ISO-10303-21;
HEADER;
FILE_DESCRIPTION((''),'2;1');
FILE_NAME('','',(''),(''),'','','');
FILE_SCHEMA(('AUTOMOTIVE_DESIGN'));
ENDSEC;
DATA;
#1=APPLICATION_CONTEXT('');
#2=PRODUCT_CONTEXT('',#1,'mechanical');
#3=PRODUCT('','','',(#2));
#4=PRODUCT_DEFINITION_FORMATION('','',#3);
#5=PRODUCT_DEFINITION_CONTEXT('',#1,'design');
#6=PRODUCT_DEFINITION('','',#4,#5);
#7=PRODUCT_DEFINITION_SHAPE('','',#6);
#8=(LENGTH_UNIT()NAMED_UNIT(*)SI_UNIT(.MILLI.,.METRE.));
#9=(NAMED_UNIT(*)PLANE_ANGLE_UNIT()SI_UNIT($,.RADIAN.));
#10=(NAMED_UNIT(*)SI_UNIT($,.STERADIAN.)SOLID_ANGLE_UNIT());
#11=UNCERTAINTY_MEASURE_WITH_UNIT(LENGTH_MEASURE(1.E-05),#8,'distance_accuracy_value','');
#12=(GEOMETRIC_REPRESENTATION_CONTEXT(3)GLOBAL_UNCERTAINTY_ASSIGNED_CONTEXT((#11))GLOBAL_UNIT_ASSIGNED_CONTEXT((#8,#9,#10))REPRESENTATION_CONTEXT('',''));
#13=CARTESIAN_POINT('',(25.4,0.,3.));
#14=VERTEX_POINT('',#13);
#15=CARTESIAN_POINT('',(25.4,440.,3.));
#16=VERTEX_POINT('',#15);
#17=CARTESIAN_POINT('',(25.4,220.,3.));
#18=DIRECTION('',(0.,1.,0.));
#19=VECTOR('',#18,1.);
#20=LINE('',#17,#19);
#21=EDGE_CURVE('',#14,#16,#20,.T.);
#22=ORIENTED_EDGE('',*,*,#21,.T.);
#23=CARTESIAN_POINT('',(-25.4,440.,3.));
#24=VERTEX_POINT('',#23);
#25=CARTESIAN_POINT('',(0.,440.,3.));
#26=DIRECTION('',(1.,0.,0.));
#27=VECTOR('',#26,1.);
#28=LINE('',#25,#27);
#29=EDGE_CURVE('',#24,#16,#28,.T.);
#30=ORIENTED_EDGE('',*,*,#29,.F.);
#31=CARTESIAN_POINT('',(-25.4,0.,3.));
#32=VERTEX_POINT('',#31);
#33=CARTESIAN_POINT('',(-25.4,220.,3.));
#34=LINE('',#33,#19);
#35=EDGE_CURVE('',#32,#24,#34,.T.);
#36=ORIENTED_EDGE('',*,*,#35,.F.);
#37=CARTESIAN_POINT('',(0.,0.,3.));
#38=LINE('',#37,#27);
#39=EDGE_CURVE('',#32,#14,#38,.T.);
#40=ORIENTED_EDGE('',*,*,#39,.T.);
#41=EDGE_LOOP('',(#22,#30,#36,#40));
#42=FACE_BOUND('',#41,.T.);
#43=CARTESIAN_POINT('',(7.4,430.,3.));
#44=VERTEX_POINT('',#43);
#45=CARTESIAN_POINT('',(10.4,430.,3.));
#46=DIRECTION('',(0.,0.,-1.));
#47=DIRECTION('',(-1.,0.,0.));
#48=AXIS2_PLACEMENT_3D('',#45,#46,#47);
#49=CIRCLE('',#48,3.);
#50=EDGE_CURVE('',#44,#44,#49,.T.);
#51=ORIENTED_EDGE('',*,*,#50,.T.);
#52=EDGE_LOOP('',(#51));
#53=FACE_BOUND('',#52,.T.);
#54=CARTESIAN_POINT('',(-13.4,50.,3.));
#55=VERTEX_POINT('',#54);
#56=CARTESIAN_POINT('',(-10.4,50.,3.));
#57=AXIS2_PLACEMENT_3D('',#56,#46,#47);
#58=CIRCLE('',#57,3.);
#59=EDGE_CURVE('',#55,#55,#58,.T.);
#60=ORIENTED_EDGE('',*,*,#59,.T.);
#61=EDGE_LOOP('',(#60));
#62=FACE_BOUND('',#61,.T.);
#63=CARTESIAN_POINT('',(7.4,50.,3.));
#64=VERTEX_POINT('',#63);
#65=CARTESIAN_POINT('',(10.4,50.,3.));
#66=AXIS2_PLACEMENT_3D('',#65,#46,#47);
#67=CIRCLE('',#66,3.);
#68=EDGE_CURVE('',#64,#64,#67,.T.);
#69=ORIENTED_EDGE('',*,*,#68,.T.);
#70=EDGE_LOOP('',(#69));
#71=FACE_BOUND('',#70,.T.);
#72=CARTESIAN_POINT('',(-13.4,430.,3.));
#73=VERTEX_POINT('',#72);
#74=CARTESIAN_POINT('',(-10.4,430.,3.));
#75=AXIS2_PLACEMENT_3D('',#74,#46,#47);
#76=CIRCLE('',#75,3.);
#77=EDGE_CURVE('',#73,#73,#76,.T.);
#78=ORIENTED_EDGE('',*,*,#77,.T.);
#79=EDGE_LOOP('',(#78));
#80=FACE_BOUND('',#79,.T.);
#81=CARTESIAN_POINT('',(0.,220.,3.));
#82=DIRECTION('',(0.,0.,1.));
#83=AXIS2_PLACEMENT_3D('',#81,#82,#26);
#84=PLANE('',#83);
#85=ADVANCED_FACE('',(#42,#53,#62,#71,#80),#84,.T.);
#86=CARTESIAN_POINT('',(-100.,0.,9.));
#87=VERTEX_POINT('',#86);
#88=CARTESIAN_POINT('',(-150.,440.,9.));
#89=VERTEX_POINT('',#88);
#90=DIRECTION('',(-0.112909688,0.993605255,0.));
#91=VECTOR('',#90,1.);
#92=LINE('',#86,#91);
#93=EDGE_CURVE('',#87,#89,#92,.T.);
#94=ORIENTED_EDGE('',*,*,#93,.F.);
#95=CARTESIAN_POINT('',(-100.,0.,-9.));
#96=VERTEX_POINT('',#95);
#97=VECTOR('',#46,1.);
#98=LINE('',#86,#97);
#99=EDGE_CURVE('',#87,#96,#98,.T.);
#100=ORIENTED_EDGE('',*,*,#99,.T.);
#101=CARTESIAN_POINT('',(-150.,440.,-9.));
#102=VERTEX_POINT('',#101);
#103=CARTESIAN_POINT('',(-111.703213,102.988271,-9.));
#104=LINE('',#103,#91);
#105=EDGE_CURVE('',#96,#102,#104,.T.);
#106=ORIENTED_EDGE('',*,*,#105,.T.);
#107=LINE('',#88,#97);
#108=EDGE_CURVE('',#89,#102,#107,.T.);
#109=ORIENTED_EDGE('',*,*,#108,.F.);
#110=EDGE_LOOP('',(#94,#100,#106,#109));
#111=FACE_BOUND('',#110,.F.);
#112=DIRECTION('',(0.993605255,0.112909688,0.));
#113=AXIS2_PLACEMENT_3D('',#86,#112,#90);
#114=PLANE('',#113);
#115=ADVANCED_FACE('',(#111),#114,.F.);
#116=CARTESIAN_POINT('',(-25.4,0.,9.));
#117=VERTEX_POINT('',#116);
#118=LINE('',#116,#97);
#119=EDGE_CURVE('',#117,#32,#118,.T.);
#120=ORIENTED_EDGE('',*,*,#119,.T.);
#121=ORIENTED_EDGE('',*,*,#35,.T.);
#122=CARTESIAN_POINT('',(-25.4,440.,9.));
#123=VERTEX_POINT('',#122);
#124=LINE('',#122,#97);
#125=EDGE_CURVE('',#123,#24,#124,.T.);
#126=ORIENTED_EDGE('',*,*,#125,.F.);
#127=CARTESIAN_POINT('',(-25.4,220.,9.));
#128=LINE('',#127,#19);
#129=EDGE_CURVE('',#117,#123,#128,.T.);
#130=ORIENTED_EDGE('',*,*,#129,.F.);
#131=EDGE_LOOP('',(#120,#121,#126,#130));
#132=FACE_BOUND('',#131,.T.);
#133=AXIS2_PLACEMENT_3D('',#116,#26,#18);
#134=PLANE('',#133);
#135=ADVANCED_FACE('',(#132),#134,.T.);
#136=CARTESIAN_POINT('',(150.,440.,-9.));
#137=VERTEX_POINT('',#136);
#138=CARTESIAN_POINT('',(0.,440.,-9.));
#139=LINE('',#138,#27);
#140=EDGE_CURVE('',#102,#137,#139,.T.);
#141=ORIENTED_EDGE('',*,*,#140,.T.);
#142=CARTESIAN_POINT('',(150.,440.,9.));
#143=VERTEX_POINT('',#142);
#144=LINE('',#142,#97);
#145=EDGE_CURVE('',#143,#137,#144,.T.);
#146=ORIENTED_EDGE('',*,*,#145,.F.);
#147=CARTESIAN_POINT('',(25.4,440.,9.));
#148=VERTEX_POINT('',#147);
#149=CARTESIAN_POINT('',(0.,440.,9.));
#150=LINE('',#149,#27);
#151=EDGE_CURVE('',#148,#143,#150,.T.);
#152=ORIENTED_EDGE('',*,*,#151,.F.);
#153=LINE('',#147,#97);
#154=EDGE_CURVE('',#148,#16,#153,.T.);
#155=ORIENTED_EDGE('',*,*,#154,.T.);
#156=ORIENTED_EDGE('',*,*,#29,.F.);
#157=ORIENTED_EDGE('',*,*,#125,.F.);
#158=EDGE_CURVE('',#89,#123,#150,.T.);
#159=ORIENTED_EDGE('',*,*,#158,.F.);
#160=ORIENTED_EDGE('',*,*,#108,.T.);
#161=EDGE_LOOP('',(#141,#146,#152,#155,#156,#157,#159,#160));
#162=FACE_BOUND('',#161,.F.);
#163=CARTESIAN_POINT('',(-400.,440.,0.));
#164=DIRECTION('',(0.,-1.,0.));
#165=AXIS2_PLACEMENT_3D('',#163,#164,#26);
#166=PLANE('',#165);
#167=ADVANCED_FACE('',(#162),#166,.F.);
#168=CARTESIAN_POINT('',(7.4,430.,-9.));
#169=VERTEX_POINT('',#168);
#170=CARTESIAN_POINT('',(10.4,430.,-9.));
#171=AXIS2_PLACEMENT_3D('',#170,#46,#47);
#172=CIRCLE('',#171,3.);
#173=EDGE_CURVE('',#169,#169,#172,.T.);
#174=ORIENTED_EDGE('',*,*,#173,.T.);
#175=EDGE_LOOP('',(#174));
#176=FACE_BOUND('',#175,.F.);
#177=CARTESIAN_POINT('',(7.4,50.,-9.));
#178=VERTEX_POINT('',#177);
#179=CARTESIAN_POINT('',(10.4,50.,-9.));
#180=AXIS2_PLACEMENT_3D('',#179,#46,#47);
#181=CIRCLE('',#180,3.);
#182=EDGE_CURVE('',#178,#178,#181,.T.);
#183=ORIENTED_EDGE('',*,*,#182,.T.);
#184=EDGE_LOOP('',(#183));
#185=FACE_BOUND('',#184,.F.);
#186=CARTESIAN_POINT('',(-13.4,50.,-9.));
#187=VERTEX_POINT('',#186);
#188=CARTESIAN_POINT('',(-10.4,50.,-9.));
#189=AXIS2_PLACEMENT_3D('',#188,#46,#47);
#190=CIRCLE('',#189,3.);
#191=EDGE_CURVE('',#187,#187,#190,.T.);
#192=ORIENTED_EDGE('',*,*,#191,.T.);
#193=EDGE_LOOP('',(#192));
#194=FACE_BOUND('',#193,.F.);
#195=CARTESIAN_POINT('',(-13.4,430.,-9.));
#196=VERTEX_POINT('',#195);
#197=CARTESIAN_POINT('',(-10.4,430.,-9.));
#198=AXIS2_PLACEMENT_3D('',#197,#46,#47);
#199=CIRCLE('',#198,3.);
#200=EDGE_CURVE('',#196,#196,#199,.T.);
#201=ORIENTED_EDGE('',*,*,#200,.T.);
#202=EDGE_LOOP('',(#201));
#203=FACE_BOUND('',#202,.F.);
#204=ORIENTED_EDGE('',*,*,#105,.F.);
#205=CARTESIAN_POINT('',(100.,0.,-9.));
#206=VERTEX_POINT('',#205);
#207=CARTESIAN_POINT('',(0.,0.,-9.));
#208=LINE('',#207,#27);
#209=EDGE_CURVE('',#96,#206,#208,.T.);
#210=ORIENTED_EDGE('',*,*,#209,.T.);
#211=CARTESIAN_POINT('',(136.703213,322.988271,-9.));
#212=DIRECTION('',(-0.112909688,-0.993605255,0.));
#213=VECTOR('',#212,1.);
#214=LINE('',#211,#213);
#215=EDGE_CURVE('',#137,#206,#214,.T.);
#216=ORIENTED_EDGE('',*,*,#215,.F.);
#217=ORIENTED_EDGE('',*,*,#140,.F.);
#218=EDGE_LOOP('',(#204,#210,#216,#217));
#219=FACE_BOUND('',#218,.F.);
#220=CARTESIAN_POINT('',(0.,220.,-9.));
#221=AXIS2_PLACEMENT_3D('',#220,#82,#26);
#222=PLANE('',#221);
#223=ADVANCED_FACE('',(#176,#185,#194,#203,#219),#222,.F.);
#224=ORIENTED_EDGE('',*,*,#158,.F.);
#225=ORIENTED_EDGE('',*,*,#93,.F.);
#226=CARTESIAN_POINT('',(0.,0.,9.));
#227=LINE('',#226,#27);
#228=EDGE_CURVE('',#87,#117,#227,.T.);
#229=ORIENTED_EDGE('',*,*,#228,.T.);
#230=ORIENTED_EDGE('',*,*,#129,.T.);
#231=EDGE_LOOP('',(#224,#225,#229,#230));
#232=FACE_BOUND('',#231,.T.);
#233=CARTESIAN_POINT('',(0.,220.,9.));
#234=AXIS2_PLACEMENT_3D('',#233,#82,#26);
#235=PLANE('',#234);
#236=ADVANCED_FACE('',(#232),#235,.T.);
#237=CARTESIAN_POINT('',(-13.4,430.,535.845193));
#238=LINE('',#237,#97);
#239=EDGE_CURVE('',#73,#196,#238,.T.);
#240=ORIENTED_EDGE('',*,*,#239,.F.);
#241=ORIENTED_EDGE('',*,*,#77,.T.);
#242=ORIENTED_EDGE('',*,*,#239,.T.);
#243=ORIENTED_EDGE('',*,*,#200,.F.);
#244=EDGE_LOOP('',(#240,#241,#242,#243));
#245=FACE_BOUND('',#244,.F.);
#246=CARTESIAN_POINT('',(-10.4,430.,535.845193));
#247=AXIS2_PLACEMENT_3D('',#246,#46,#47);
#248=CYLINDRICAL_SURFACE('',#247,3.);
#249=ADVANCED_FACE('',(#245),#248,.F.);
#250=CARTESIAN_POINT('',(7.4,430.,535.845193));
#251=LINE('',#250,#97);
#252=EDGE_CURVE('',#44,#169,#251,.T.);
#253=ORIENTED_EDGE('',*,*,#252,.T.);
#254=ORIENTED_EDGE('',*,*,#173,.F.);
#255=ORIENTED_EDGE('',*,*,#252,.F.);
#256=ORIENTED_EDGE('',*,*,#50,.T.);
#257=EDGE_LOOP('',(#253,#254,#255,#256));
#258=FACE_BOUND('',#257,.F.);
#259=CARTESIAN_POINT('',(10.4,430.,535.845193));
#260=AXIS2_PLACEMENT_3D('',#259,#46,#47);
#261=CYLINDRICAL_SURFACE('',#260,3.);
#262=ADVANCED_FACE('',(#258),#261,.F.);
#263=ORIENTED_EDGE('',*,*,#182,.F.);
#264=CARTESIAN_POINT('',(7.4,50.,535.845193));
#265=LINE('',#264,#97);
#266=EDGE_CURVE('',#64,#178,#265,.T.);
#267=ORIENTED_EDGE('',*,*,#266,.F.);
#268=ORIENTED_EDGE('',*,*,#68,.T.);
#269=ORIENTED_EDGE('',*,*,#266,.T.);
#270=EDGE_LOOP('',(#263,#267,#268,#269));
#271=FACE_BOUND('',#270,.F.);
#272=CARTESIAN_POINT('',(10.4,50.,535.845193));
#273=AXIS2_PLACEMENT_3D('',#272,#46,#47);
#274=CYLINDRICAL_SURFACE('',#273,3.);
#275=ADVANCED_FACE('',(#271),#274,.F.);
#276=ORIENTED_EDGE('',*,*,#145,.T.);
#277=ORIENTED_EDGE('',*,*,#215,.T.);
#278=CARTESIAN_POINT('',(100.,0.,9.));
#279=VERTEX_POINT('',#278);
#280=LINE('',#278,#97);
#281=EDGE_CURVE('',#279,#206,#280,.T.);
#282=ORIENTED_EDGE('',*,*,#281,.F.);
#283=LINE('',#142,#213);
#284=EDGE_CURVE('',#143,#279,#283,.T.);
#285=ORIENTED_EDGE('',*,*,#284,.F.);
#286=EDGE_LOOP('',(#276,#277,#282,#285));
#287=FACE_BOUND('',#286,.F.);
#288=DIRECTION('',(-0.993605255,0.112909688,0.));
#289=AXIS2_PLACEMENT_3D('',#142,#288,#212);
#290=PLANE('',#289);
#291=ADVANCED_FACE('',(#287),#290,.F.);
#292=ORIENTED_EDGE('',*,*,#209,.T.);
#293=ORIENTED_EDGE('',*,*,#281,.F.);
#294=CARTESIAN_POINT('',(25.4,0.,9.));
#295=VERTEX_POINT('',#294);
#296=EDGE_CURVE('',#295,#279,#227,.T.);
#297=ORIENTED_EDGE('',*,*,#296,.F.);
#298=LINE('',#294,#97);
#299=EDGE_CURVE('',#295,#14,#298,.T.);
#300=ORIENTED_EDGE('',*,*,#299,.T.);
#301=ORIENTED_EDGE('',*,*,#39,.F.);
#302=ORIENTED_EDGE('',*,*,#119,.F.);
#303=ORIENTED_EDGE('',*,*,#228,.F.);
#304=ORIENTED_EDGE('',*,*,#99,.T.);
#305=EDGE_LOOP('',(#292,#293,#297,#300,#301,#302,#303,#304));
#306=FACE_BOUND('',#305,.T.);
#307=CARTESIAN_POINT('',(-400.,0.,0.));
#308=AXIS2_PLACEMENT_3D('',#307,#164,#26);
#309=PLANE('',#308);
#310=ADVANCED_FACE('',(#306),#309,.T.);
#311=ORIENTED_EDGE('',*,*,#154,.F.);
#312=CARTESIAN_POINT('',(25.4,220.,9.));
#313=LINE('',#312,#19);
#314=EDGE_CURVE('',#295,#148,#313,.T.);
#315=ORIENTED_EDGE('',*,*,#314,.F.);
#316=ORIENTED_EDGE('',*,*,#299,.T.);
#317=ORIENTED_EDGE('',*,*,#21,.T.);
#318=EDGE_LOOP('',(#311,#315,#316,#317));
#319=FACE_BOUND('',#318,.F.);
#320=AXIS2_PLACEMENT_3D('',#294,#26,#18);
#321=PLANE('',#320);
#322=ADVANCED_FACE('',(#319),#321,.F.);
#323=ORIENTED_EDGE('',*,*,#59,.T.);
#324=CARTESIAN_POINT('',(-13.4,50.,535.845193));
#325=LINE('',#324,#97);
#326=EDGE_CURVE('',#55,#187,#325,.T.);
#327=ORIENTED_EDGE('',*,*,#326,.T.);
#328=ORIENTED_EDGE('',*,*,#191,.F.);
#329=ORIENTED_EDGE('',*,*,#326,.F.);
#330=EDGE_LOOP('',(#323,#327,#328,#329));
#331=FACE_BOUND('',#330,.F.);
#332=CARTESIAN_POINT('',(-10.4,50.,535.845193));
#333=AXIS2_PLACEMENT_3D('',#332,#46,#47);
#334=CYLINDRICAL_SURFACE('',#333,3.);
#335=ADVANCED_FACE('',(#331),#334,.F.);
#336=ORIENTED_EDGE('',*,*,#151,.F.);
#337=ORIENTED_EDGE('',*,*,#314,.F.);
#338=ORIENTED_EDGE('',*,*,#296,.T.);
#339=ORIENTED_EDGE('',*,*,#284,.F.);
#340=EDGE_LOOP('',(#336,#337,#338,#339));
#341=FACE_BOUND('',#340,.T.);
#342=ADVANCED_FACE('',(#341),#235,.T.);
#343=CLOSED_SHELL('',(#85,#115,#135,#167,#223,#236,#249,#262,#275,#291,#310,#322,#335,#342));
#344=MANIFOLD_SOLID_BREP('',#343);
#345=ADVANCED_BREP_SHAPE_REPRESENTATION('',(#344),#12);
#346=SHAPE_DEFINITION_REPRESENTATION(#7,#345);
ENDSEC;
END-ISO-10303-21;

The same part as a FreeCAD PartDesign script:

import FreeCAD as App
import Part
import Sketcher
from FreeCAD import Vector

doc = App.newDocument("Part")
params = doc.addObject("Spreadsheet::Sheet", "Params")
for row, (alias, value) in enumerate([
    ("sketch1_width", "800 mm"),
    ("sketch1_height", "440 mm"),
    ("pad1_length", "18 mm"),
    ("sketch2_width", "300 mm"),
    ("sketch2_width2", "250 mm"),
    ("sketch2_height", "440 mm"),
    ("pocket1_length", "40 mm"),
    ("sketch3_height", "440 mm"),
    ("sketch3_width", "50.8 mm"),
    ("pocket2_length", "6 mm"),
    ("sketch4_diameter", "6 mm"),
    ("hole_diameter", "6 mm"),
], start=1):
    params.set(f"A{row}", alias)
    params.set(f"B{row}", "=" + value)
    params.setAlias(f"B{row}", alias)

body = doc.addObject("PartDesign::Body", "Body")

sketch1 = body.newObject("Sketcher::SketchObject", "Sketch")
sketch1.AttachmentSupport = (doc.getObject("XY_Plane"), [""])
sketch1.MapMode = "FlatFace"
sketch1.addGeometry([
    Part.LineSegment(Vector(-400, 440, 0), Vector(-400, 0, 0)),
    Part.LineSegment(Vector(-400, 0, 0), Vector(400, 0, 0)),
    Part.LineSegment(Vector(400, 0, 0), Vector(400, 440, 0)),
    Part.LineSegment(Vector(400, 440, 0), Vector(-400, 440, 0)),
], False)
sketch1.addConstraint([
    Sketcher.Constraint("Coincident", 0, 2, 1, 1),
    Sketcher.Constraint("Coincident", 1, 2, 2, 1),
    Sketcher.Constraint("Coincident", 2, 2, 3, 1),
    Sketcher.Constraint("Coincident", 3, 2, 0, 1),
    Sketcher.Constraint("Vertical", 0),
    Sketcher.Constraint("Horizontal", 1),
    Sketcher.Constraint("Vertical", 2),
    Sketcher.Constraint("Horizontal", 3),
    Sketcher.Constraint("Symmetric", 0, 2, 1, 2, -1, 1),
    Sketcher.Constraint("DistanceX", 1, 1, 1, 2, 800.0),
    Sketcher.Constraint("DistanceY", 0, 2, 0, 1, 440.0),
])
sketch1.setExpression("Constraints[9]", "Params.sketch1_width")
sketch1.setExpression("Constraints[10]", "Params.sketch1_height")
pad1 = body.newObject("PartDesign::Pad", "Pad")
pad1.Profile = sketch1
pad1.setExpression("Length", "Params.pad1_length")
pad1.Midplane = True

sketch2 = body.newObject("Sketcher::SketchObject", "Sketch001")
sketch2.AttachmentSupport = (doc.getObject("XY_Plane"), [""])
sketch2.MapMode = "FlatFace"
sketch2.AttachmentOffset = App.Placement(Vector(0, 0, 9), App.Rotation())
sketch2.addGeometry([
    Part.LineSegment(Vector(-400, 0, 0), Vector(-100, 0, 0)),
    Part.LineSegment(Vector(-100, 0, 0), Vector(-150, 440, 0)),
    Part.LineSegment(Vector(-150, 440, 0), Vector(-400, 440, 0)),
    Part.LineSegment(Vector(-400, 440, 0), Vector(-400, 0, 0)),
    Part.LineSegment(Vector(150, 440, 0), Vector(100, 0, 0)),
    Part.LineSegment(Vector(100, 0, 0), Vector(400, 0, 0)),
    Part.LineSegment(Vector(400, 0, 0), Vector(400, 440, 0)),
    Part.LineSegment(Vector(400, 440, 0), Vector(150, 440, 0)),
], False)
sketch2.addConstraint([
    Sketcher.Constraint("Coincident", 0, 2, 1, 1),
    Sketcher.Constraint("Coincident", 1, 2, 2, 1),
    Sketcher.Constraint("Coincident", 2, 2, 3, 1),
    Sketcher.Constraint("Coincident", 3, 2, 0, 1),
    Sketcher.Constraint("Coincident", 4, 2, 5, 1),
    Sketcher.Constraint("Coincident", 5, 2, 6, 1),
    Sketcher.Constraint("Coincident", 6, 2, 7, 1),
    Sketcher.Constraint("Coincident", 7, 2, 4, 1),
    Sketcher.Constraint("Horizontal", 0),
    Sketcher.Constraint("Horizontal", 2),
    Sketcher.Constraint("Vertical", 3),
    Sketcher.Constraint("Horizontal", 5),
    Sketcher.Constraint("Vertical", 6),
    Sketcher.Constraint("Horizontal", 7),
    Sketcher.Constraint("Symmetric", 0, 2, 4, 2, -1, 1),
    Sketcher.Constraint("Symmetric", 3, 2, 5, 2, -2),
    Sketcher.Constraint("Symmetric", 1, 2, 7, 2, -2),
    Sketcher.Constraint("DistanceX", 0, 1, 0, 2, 300.0),
    Sketcher.Constraint("DistanceX", 2, 2, 2, 1, 250.0),
    Sketcher.Constraint("DistanceY", 3, 2, 3, 1, 440.0),
    Sketcher.Constraint("DistanceX", 0, 2, -1, 1, 100.0),
])
sketch2.setExpression("Constraints[17]", "Params.sketch2_width")
sketch2.setExpression("Constraints[18]", "Params.sketch2_width2")
sketch2.setExpression("Constraints[19]", "Params.sketch2_height")
pocket1 = body.newObject("PartDesign::Pocket", "Pocket")
pocket1.Profile = sketch2
pocket1.setExpression("Length", "Params.pocket1_length")

sketch3 = body.newObject("Sketcher::SketchObject", "Sketch002")
sketch3.AttachmentSupport = (doc.getObject("XY_Plane"), [""])
sketch3.MapMode = "FlatFace"
sketch3.AttachmentOffset = App.Placement(Vector(0, 0, 9), App.Rotation())
sketch3.addGeometry([
    Part.LineSegment(Vector(-25.4, 440, 0), Vector(-25.4, 0, 0)),
    Part.LineSegment(Vector(-25.4, 0, 0), Vector(25.4, 0, 0)),
    Part.LineSegment(Vector(25.4, 0, 0), Vector(25.4, 440, 0)),
    Part.LineSegment(Vector(25.4, 440, 0), Vector(-25.4, 440, 0)),
], False)
sketch3.addConstraint([
    Sketcher.Constraint("Coincident", 0, 2, 1, 1),
    Sketcher.Constraint("Coincident", 1, 2, 2, 1),
    Sketcher.Constraint("Coincident", 2, 2, 3, 1),
    Sketcher.Constraint("Coincident", 3, 2, 0, 1),
    Sketcher.Constraint("Vertical", 0),
    Sketcher.Constraint("Horizontal", 1),
    Sketcher.Constraint("Vertical", 2),
    Sketcher.Constraint("Horizontal", 3),
    Sketcher.Constraint("Symmetric", 0, 2, 1, 2, -1, 1),
    Sketcher.Constraint("DistanceY", 0, 2, 0, 1, 440.0),
    Sketcher.Constraint("DistanceX", 1, 1, 1, 2, 50.8),
])
sketch3.setExpression("Constraints[9]", "Params.sketch3_height")
sketch3.setExpression("Constraints[10]", "Params.sketch3_width")
pocket2 = body.newObject("PartDesign::Pocket", "Pocket001")
pocket2.Profile = sketch3
pocket2.setExpression("Length", "Params.pocket2_length")

sketch4 = body.newObject("Sketcher::SketchObject", "Sketch003")
sketch4.AttachmentSupport = (doc.getObject("XY_Plane"), [""])
sketch4.MapMode = "FlatFace"
sketch4.AttachmentOffset = App.Placement(Vector(0, 0, 3), App.Rotation())
sketch4.addGeometry([
    Part.Circle(Vector(-10.4, 430, 0), Vector(0, 0, 1), 3),
    Part.Circle(Vector(10.4, 430, 0), Vector(0, 0, 1), 3),
    Part.Circle(Vector(10.4, 50, 0), Vector(0, 0, 1), 3),
    Part.Circle(Vector(-10.4, 50, 0), Vector(0, 0, 1), 3),
], False)
sketch4.addConstraint([
    Sketcher.Constraint("Equal", 0, 1),
    Sketcher.Constraint("Equal", 1, 2),
    Sketcher.Constraint("Equal", 2, 3),
    Sketcher.Constraint("Symmetric", 0, 3, 1, 3, -2),
    Sketcher.Constraint("Symmetric", 2, 3, 3, 3, -2),
    Sketcher.Constraint("Vertical", 1, 3, 2, 3),
    Sketcher.Constraint("Diameter", 0, 6.0),
    Sketcher.Constraint("DistanceY", -1, 1, 0, 3, 430.0),
    Sketcher.Constraint("DistanceY", -1, 1, 2, 3, 50.0),
    Sketcher.Constraint("DistanceX", 0, 3, -1, 1, 10.4),
])
sketch4.setExpression("Constraints[6]", "Params.sketch4_diameter")
doc.recompute()
hole = body.newObject("PartDesign::Hole", "Hole")
hole.Profile = sketch4
hole.ThreadType = "None"
hole.setExpression("Diameter", "Params.hole_diameter")
hole.DepthType = "ThroughAll"

doc.recompute()
